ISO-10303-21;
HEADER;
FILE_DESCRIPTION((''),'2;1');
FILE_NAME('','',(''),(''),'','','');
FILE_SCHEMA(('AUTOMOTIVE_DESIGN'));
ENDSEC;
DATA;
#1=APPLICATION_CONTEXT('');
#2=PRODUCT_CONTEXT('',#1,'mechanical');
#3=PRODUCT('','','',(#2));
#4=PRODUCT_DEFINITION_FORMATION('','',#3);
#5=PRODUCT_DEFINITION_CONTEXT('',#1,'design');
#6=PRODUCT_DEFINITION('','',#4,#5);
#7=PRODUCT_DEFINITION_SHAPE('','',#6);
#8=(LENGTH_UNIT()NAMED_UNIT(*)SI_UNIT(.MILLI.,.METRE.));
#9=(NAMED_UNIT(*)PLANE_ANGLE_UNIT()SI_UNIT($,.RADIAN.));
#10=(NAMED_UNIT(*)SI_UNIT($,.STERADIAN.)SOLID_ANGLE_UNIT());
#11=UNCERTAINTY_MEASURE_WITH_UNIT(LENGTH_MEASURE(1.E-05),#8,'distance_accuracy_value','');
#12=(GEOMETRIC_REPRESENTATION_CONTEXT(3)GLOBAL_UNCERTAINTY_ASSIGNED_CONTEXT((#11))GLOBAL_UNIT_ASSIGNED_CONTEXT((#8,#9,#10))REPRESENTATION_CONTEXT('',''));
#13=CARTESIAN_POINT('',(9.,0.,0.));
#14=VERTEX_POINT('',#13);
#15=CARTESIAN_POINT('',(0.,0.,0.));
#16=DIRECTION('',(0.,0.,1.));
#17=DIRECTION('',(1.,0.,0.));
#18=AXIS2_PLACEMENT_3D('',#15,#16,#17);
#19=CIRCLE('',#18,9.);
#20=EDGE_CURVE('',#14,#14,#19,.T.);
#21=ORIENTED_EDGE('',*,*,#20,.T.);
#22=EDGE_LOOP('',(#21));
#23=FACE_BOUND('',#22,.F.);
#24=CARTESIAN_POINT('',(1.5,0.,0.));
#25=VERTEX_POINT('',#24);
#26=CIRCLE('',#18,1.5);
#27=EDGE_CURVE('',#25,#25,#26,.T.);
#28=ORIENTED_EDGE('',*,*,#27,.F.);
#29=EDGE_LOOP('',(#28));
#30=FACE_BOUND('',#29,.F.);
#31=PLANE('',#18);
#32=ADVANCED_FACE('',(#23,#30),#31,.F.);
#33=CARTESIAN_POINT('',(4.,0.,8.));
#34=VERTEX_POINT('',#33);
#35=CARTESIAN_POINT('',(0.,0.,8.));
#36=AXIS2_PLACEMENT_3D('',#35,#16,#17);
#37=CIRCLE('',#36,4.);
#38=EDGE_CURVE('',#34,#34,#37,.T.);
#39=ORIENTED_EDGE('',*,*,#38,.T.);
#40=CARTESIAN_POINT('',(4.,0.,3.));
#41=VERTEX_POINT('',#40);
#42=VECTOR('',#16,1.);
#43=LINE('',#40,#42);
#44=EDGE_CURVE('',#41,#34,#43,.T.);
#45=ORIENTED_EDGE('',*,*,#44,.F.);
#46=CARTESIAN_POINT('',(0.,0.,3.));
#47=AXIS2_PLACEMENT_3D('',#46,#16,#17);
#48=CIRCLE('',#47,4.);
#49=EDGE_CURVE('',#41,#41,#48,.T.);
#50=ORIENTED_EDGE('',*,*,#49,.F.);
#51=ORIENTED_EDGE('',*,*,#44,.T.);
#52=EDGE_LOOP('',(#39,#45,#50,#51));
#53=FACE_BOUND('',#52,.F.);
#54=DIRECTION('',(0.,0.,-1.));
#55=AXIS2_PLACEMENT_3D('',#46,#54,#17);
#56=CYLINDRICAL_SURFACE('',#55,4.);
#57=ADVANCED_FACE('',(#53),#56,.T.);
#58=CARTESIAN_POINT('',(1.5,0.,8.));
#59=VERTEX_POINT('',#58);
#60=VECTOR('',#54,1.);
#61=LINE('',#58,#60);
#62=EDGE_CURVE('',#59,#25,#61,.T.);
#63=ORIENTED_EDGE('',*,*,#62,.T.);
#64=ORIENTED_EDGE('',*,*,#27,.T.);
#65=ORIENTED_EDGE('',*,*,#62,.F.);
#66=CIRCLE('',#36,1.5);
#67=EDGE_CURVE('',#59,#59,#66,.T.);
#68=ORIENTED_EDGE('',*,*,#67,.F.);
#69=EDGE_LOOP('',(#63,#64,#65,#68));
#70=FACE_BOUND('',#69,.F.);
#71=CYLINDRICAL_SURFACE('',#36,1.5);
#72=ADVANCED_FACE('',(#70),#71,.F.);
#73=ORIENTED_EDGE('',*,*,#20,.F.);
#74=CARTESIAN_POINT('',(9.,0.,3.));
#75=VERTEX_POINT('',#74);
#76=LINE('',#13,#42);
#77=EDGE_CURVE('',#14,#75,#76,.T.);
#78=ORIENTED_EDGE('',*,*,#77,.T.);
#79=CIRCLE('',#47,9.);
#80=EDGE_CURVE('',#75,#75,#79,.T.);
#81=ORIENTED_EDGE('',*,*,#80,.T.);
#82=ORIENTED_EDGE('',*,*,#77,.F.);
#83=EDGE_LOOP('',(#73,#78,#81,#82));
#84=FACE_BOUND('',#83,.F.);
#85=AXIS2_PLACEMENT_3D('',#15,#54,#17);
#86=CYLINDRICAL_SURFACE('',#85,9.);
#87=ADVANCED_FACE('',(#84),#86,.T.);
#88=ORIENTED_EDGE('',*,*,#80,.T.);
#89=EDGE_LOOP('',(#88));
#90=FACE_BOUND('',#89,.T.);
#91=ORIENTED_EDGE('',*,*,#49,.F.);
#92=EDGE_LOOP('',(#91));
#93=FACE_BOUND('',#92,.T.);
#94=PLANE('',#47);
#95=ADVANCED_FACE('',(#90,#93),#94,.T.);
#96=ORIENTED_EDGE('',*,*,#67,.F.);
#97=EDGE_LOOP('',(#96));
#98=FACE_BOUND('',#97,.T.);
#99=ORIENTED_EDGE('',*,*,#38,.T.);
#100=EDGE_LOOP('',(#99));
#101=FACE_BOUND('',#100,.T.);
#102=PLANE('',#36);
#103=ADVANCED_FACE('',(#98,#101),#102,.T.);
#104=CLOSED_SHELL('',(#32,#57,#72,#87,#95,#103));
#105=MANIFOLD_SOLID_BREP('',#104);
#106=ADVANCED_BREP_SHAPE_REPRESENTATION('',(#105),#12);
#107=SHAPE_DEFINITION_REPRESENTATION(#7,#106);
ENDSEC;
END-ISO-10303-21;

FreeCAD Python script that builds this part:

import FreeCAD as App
import Part
import Sketcher
Q = App.Units.Quantity

doc = App.newDocument("Part")
body = doc.addObject("PartDesign::Body", "Body")

# Sketch on XY plane
sketch1 = doc.addObject("Sketcher::SketchObject", "Sketch")
body.addObject(sketch1)
sketch1.AttachmentSupport = (doc.XY_Plane, [""])
sketch1.MapMode = "FlatFace"
sketch1.addGeometry(Part.Circle(App.Vector(0, 0, 0), App.Vector(0, 0, 1), 9), False)
sketch1.addConstraint([
    Sketcher.Constraint("Coincident", 0, 3, -1, 1),
    Sketcher.Constraint("Diameter", 0, Q("18 mm")),
])
pad1 = doc.addObject("PartDesign::Pad", "Pad")
body.addObject(pad1)
pad1.Profile = sketch1
pad1.Length = 3

# Sketch on XY plane
sketch2 = doc.addObject("Sketcher::SketchObject", "Sketch001")
body.addObject(sketch2)
sketch2.AttachmentSupport = (doc.XY_Plane, [""])
sketch2.MapMode = "FlatFace"
sketch2.AttachmentOffset = App.Placement(App.Vector(0, 0, 3), App.Rotation())
sketch2.addGeometry(Part.Circle(App.Vector(0, 0, 0), App.Vector(0, 0, 1), 4), False)
sketch2.addConstraint([
    Sketcher.Constraint("Coincident", 0, 3, -1, 1),
    Sketcher.Constraint("Diameter", 0, Q("8 mm")),
])
pad2 = doc.addObject("PartDesign::Pad", "Pad001")
body.addObject(pad2)
pad2.Profile = sketch2
pad2.Length = 5

# Sketch on XY plane
sketch3 = doc.addObject("Sketcher::SketchObject", "Sketch002")
body.addObject(sketch3)
sketch3.AttachmentSupport = (doc.XY_Plane, [""])
sketch3.MapMode = "FlatFace"
sketch3.AttachmentOffset = App.Placement(App.Vector(0, 0, 8), App.Rotation())
sketch3.addGeometry(Part.Circle(App.Vector(0, 0, 0), App.Vector(0, 0, 1), 1.5), False)
sketch3.addConstraint([
    Sketcher.Constraint("Coincident", 0, 3, -1, 1),
    Sketcher.Constraint("Diameter", 0, Q("3 mm")),
])
pocket1 = doc.addObject("PartDesign::Pocket", "Pocket")
body.addObject(pocket1)
pocket1.Profile = sketch3
pocket1.Length = 10

doc.recompute()
